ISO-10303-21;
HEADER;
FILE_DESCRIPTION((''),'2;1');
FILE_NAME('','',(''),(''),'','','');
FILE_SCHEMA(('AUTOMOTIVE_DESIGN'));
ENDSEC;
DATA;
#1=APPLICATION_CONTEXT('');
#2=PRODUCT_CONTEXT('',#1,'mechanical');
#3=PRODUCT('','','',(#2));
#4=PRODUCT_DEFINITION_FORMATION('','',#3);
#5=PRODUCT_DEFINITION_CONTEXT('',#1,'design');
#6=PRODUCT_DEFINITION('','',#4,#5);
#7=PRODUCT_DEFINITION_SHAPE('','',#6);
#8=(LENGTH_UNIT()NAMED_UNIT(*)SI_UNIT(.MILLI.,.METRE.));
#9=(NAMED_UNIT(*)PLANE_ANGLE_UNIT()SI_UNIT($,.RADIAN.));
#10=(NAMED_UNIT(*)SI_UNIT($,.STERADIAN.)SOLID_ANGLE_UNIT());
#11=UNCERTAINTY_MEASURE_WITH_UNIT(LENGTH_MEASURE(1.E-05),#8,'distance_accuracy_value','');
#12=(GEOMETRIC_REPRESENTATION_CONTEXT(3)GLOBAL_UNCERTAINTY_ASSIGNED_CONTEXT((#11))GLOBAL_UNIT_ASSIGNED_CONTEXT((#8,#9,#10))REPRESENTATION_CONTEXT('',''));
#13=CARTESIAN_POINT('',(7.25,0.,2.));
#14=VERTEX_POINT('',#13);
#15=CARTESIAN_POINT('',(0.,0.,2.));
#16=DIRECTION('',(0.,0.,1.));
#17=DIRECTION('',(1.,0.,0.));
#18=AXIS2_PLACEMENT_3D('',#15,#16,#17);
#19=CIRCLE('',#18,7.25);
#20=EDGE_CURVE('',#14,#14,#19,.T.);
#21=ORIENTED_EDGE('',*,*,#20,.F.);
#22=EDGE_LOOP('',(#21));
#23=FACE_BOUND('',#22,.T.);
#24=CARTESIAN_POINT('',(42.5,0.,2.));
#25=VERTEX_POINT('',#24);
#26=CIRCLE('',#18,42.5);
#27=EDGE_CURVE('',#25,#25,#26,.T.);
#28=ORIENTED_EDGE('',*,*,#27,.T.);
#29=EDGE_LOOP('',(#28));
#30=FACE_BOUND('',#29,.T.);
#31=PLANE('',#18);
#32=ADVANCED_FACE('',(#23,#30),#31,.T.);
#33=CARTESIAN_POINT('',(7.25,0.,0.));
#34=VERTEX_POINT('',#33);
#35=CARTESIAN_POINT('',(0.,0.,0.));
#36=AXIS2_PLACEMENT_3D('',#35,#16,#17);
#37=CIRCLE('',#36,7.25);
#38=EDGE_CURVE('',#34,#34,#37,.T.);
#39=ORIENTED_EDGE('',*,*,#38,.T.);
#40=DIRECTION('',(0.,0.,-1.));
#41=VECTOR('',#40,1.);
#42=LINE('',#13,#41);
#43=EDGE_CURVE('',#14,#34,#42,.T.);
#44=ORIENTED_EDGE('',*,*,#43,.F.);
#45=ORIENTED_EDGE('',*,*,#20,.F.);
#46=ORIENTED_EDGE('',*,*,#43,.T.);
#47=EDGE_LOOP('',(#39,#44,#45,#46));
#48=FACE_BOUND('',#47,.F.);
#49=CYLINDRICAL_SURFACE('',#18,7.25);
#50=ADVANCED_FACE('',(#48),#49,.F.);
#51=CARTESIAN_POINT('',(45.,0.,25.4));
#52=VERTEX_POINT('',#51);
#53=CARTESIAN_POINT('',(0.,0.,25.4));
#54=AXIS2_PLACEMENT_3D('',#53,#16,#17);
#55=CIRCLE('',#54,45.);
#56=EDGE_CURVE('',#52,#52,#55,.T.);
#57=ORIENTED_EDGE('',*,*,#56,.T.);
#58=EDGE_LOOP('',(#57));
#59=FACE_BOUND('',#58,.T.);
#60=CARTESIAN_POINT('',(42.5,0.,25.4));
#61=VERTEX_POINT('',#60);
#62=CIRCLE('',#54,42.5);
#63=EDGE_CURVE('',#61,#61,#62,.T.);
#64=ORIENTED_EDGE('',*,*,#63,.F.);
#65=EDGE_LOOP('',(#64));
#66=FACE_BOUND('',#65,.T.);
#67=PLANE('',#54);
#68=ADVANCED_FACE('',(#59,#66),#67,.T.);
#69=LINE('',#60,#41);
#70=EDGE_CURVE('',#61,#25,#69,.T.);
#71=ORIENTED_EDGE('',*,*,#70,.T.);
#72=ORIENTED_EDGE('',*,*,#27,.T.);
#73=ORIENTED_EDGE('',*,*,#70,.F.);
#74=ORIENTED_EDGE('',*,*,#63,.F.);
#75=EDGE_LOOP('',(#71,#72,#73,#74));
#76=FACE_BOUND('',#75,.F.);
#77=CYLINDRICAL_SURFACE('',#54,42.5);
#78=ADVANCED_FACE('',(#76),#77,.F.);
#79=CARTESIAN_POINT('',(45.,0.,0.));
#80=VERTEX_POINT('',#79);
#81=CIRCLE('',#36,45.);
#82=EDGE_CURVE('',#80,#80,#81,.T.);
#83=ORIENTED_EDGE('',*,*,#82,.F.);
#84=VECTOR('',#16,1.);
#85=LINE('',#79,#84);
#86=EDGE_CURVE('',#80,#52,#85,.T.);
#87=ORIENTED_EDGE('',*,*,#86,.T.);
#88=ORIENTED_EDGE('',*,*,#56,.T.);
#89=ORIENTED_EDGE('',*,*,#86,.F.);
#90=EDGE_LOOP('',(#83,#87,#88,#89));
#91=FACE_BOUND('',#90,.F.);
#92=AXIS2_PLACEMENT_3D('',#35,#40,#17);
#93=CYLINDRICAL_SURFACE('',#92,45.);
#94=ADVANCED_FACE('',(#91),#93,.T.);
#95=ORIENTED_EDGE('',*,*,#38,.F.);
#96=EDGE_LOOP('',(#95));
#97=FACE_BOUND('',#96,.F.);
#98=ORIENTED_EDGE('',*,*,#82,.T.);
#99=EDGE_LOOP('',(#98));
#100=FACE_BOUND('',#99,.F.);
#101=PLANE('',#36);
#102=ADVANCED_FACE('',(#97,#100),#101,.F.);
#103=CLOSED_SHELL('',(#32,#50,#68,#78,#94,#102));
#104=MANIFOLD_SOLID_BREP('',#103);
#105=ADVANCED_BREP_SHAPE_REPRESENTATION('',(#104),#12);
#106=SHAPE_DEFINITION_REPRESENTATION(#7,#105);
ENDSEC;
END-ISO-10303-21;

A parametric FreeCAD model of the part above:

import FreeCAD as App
import Part
import Sketcher
from FreeCAD import Vector
Q = App.Units.Quantity

doc = App.newDocument("Part")
body = doc.addObject("PartDesign::Body", "Body")

sketch1 = doc.addObject("Sketcher::SketchObject", "Sketch")
body.addObject(sketch1)
sketch1.AttachmentSupport = (doc.XY_Plane, [""])
sketch1.MapMode = "FlatFace"
sketch1.addGeometry(Part.Circle(Vector(0, 0, 0), Vector(0, 0, 1), 45), False)
sketch1.addConstraint(Sketcher.Constraint("Coincident", 0, 3, -1, 1))
sketch1.addConstraint(Sketcher.Constraint("Diameter", 0, Q("90 mm")))
pad1 = doc.addObject("PartDesign::Pad", "Pad")
body.addObject(pad1)
pad1.Profile = sketch1
pad1.Length = 25.4

sketch2 = doc.addObject("Sketcher::SketchObject", "Sketch001")
body.addObject(sketch2)
sketch2.AttachmentSupport = (doc.XY_Plane, [""])
sketch2.MapMode = "FlatFace"
sketch2.AttachmentOffset = App.Placement(Vector(0, 0, 25.4), App.Rotation())
sketch2.addGeometry(Part.Circle(Vector(0, 0, 0), Vector(0, 0, 1), 42.5), False)
sketch2.addConstraint(Sketcher.Constraint("Coincident", 0, 3, -1, 1))
sketch2.addConstraint(Sketcher.Constraint("Diameter", 0, Q("85 mm")))
pocket1 = doc.addObject("PartDesign::Pocket", "Pocket")
body.addObject(pocket1)
pocket1.Profile = sketch2
pocket1.Length = 23.4

sketch3 = doc.addObject("Sketcher::SketchObject", "Sketch002")
body.addObject(sketch3)
sketch3.AttachmentSupport = (doc.XY_Plane, [""])
sketch3.MapMode = "FlatFace"
sketch3.AttachmentOffset = App.Placement(Vector(0, 0, 2), App.Rotation())
sketch3.addGeometry(Part.Circle(Vector(0, 0, 0), Vector(0, 0, 1), 7.25), False)
sketch3.addConstraint(Sketcher.Constraint("Coincident", 0, 3, -1, 1))
sketch3.addConstraint(Sketcher.Constraint("Diameter", 0, Q("14.5 mm")))
pocket2 = doc.addObject("PartDesign::Pocket", "Pocket001")
body.addObject(pocket2)
pocket2.Profile = sketch3
pocket2.Length = 25

doc.recompute()
